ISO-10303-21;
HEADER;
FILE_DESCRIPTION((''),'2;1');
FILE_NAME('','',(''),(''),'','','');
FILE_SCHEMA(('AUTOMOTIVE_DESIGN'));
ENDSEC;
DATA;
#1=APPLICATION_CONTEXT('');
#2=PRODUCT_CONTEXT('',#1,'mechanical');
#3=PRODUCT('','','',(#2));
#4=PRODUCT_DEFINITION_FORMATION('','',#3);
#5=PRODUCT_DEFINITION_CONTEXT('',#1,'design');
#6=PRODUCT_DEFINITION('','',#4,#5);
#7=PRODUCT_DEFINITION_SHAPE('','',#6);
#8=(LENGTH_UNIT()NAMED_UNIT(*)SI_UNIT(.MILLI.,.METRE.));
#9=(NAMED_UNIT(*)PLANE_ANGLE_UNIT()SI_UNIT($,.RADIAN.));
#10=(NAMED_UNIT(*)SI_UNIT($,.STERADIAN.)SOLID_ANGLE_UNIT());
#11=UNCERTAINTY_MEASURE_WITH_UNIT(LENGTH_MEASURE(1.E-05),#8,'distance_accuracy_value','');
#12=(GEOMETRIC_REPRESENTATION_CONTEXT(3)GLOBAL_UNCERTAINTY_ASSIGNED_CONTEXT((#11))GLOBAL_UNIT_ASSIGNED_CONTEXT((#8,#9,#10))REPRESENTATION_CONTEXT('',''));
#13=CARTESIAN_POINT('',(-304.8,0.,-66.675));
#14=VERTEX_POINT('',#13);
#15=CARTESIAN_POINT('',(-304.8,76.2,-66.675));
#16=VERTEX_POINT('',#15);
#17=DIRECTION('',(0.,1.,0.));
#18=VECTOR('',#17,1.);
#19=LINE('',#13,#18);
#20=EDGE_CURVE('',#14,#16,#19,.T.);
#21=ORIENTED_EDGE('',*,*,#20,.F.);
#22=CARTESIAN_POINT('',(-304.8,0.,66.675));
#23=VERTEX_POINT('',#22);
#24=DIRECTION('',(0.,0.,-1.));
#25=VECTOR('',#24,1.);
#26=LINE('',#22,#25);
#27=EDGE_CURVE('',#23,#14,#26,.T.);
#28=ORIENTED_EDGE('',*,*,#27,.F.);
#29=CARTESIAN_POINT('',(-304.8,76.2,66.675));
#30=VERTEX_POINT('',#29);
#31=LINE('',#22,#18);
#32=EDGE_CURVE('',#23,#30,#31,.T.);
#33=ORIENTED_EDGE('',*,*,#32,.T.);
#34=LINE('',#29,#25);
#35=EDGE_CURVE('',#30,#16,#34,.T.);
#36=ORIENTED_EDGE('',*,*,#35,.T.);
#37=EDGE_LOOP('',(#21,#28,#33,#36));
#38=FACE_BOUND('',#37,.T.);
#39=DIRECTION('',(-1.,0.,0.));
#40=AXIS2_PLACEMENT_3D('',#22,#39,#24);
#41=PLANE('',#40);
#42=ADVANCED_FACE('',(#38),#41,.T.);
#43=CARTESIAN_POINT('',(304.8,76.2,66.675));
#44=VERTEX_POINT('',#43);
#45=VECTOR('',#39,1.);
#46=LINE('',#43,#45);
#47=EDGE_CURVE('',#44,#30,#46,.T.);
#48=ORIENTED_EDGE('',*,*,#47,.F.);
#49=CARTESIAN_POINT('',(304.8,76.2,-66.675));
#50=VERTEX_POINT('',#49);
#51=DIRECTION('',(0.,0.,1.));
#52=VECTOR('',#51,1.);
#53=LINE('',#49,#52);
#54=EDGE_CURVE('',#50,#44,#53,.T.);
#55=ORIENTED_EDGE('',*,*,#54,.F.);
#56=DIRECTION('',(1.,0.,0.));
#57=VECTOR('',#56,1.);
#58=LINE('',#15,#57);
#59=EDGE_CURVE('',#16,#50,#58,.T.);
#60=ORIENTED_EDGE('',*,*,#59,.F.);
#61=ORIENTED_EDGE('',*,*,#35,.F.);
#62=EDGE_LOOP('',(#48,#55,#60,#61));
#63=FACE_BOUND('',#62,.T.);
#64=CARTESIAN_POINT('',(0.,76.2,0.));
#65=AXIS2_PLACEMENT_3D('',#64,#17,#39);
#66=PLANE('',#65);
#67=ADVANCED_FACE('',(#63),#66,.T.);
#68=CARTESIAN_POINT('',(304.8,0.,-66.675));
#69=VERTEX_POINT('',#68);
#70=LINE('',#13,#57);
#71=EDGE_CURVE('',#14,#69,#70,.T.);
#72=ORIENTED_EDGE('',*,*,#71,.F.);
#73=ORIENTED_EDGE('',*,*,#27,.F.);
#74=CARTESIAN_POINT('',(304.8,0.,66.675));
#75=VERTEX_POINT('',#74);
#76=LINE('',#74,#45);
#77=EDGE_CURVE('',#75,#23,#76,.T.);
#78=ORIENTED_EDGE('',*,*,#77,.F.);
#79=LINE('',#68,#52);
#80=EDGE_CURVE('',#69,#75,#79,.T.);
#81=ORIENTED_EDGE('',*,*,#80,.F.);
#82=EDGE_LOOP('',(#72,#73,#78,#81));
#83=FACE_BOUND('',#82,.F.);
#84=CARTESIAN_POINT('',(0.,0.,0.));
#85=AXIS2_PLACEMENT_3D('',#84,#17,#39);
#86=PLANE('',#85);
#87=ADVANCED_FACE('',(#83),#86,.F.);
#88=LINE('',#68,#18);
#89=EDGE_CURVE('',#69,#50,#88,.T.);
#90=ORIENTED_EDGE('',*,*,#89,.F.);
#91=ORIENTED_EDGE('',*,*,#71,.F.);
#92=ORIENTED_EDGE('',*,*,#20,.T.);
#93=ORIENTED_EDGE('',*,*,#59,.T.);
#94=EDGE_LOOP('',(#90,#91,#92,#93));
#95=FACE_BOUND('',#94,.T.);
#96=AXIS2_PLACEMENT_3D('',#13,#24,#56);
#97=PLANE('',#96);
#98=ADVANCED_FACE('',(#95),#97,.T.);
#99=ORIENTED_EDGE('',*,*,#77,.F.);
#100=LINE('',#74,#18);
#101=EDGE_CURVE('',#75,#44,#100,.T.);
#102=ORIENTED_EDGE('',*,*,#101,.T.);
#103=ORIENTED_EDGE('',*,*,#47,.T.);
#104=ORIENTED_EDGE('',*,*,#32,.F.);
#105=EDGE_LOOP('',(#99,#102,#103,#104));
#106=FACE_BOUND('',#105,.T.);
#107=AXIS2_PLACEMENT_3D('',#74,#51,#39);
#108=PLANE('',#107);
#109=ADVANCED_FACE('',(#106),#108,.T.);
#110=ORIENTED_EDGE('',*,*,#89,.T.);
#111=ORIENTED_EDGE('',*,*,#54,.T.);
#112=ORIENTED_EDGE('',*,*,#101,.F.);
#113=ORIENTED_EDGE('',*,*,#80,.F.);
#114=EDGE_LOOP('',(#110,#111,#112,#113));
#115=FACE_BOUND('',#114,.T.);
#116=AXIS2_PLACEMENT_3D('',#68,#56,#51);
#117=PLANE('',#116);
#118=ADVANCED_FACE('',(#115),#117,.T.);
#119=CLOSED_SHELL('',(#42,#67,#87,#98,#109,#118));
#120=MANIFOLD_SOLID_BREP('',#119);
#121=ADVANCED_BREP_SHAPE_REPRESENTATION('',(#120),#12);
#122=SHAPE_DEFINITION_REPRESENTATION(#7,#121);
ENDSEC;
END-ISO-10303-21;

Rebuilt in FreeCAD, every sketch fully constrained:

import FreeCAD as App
import Part
import Sketcher
from FreeCAD import Vector
Q = App.Units.Quantity


def add_polygon(sketch, points):
    """Adds a closed chain of lines whose ends are joined by coincident constraints."""
    first, n = sketch.GeometryCount, len(points)
    for a, b in zip(points, points[1:] + points[:1]):
        sketch.addGeometry(Part.LineSegment(App.Vector(*a, 0), App.Vector(*b, 0)), False)
    for i in range(n):
        sketch.addConstraint(Sketcher.Constraint("Coincident", first + i, 2, first + (i + 1) % n, 1))

doc = App.newDocument("Part")
body = doc.addObject("PartDesign::Body", "Body")

# Sketch on XZ plane
sketch1 = doc.addObject("Sketcher::SketchObject", "Sketch")
body.addObject(sketch1)
sketch1.AttachmentSupport = (doc.XZ_Plane, [""])
sketch1.MapMode = "FlatFace"
add_polygon(sketch1, [(305, -67), (-305, -67), (-305, 67), (305, 67)])  # lines 0-3
sketch1.addConstraint([
    Sketcher.Constraint("Horizontal", 0),
    Sketcher.Constraint("Vertical", 1),
    Sketcher.Constraint("Horizontal", 2),
    Sketcher.Constraint("Vertical", 3),
    Sketcher.Constraint("Symmetric", 0, 2, 2, 2, -1, 1),
    Sketcher.Constraint("DistanceX", 0, 2, 0, 1, Q("24 in")),
    Sketcher.Constraint("DistanceY", 1, 1, 1, 2, Q("5.25 in")),
])
pad1 = doc.addObject("PartDesign::Pad", "Pad")
body.addObject(pad1)
pad1.Profile = sketch1
pad1.Length = Q("3 in")
pad1.Reversed = True

doc.recompute()
